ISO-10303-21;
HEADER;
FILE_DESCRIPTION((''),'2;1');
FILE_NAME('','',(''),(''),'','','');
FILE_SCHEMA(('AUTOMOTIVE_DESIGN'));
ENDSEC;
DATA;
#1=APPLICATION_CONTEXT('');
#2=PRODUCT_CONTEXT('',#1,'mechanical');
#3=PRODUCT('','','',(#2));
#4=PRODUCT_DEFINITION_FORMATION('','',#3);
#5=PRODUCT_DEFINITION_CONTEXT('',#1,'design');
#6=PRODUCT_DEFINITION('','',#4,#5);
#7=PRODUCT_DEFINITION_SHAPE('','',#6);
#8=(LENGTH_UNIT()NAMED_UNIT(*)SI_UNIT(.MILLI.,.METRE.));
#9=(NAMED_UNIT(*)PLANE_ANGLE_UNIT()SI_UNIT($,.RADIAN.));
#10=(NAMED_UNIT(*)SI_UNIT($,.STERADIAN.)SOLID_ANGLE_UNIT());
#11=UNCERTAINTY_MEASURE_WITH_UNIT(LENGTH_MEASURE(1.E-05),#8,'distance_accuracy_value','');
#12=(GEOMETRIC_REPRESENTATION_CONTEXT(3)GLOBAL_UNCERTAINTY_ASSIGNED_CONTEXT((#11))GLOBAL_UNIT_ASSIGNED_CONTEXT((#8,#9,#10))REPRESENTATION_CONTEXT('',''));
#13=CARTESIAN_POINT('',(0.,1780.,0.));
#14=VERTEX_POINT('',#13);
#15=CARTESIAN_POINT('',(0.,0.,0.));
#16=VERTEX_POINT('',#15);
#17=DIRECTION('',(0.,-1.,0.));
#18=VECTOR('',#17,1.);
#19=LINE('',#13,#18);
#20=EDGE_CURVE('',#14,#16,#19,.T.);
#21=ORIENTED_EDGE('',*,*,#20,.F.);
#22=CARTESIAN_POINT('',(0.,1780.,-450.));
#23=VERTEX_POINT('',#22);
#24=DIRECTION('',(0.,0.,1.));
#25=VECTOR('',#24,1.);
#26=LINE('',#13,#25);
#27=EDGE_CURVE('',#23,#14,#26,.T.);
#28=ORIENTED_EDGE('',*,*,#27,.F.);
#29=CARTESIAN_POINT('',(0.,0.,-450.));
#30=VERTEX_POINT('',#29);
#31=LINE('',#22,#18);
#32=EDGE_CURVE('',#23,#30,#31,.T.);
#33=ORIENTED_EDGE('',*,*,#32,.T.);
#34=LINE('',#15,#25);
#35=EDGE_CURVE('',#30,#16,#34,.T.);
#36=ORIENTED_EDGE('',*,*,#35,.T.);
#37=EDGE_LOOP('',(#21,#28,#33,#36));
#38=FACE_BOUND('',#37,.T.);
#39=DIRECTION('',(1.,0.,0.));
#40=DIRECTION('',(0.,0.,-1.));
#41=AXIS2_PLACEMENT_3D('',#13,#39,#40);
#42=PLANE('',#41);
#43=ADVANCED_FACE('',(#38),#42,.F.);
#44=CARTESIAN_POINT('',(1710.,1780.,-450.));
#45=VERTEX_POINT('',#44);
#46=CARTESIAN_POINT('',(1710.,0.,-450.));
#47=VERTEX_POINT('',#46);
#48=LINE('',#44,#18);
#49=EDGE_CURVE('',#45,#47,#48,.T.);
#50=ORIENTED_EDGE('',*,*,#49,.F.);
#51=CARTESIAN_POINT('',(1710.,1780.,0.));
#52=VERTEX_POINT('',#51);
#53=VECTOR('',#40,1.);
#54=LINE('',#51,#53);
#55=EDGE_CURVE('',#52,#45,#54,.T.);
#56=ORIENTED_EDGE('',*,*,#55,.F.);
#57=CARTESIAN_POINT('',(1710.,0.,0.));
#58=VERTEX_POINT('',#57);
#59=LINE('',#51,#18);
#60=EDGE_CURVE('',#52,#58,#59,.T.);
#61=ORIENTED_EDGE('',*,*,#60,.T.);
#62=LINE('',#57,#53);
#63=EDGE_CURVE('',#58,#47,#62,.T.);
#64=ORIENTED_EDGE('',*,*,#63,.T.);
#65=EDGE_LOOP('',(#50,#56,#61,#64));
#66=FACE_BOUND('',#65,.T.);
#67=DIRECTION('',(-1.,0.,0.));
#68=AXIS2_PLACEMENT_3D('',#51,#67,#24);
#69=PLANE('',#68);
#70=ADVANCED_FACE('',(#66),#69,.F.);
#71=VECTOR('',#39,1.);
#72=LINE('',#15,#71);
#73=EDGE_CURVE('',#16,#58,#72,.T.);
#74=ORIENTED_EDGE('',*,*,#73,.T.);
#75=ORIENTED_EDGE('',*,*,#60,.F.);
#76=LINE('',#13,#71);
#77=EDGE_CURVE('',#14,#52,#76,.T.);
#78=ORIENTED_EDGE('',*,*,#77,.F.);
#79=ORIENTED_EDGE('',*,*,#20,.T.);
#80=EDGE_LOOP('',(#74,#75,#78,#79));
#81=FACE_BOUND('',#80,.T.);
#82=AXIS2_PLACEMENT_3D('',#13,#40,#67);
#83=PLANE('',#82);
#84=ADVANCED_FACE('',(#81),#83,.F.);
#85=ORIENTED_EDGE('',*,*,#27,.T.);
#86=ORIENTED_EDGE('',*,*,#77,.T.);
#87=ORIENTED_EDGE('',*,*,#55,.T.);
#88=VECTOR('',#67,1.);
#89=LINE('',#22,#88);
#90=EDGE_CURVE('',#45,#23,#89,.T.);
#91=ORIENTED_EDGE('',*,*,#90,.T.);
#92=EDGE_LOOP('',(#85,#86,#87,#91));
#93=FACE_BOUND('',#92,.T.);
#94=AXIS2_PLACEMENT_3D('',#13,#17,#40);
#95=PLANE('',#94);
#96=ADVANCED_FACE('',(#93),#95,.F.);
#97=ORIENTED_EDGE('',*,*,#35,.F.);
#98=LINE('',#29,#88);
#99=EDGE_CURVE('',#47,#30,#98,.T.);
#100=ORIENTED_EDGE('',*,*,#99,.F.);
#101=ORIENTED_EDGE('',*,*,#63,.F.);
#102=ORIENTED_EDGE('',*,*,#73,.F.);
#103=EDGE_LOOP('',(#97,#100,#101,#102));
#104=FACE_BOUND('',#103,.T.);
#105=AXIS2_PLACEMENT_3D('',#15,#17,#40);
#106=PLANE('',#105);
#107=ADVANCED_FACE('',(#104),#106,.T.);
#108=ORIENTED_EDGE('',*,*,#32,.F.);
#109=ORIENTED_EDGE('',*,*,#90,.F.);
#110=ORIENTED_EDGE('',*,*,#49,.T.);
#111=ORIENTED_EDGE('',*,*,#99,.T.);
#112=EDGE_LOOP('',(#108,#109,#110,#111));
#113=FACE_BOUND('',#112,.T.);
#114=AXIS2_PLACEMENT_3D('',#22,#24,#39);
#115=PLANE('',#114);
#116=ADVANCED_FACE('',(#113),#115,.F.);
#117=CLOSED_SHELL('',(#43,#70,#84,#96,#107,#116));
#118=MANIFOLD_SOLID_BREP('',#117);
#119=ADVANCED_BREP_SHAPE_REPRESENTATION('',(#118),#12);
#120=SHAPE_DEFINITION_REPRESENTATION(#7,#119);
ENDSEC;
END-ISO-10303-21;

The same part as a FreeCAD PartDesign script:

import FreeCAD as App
import Part
import Sketcher
from FreeCAD import Vector
Q = App.Units.Quantity


def add_polygon(sketch, points):
    """Adds a closed chain of lines whose ends are joined by coincident constraints."""
    first, n = sketch.GeometryCount, len(points)
    for a, b in zip(points, points[1:] + points[:1]):
        sketch.addGeometry(Part.LineSegment(App.Vector(*a, 0), App.Vector(*b, 0)), False)
    for i in range(n):
        sketch.addConstraint(Sketcher.Constraint("Coincident", first + i, 2, first + (i + 1) % n, 1))

doc = App.newDocument("Part")
body = doc.addObject("PartDesign::Body", "Body")

sketch1 = body.newObject("Sketcher::SketchObject", "Sketch")
sketch1.AttachmentSupport = (doc.getObject("XZ_Plane"), [""])
sketch1.MapMode = "FlatFace"
add_polygon(sketch1, [(0, -450), (0, 0), (1710, 0), (1710, -450)])
sketch1.addConstraint(Sketcher.Constraint("Vertical", 0))
sketch1.addConstraint(Sketcher.Constraint("Horizontal", 1))
sketch1.addConstraint(Sketcher.Constraint("Vertical", 2))
sketch1.addConstraint(Sketcher.Constraint("Horizontal", 3))
sketch1.addConstraint(Sketcher.Constraint("Coincident", 0, 2, -1, 1))
sketch1.addConstraint(Sketcher.Constraint("DistanceX", 1, 1, 1, 2, Q("1710 mm")))
sketch1.addConstraint(Sketcher.Constraint("DistanceY", 0, 1, 0, 2, Q("450 mm")))
pad1 = body.newObject("PartDesign::Pad", "Pad")
pad1.Profile = sketch1
pad1.Length = 1780
pad1.Reversed = True

doc.recompute()
